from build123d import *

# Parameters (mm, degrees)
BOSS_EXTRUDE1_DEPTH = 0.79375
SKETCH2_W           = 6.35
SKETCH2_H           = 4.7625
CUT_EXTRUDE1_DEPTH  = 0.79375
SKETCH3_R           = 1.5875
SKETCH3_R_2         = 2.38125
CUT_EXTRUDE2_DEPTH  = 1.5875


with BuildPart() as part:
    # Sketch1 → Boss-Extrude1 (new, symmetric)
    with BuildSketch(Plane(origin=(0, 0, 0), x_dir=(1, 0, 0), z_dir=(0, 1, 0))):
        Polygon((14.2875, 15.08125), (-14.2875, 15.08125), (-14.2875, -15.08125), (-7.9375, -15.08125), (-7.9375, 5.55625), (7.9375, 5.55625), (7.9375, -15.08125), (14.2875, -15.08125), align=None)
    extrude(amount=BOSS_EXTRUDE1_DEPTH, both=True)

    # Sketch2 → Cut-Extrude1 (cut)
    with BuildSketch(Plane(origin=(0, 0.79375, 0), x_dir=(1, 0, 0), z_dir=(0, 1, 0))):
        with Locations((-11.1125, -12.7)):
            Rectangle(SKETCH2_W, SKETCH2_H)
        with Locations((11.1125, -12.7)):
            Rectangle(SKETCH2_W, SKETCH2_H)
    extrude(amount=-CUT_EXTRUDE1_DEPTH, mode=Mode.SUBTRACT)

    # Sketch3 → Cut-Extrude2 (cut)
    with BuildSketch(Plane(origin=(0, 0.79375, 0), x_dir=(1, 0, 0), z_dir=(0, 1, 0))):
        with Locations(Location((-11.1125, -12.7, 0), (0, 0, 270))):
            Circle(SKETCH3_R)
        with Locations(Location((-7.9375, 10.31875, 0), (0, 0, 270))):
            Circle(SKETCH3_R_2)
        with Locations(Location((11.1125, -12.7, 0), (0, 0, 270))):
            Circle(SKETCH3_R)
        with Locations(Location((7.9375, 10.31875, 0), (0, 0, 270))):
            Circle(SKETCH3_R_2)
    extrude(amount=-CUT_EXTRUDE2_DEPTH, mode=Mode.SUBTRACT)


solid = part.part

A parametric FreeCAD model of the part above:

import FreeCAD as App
import Part
import Sketcher

V = App.Vector
Q = App.Units.Quantity


def add_polygon(sketch, points):
    """Adds a closed chain of lines whose ends are joined by coincident constraints."""
    first, n = sketch.GeometryCount, len(points)
    for a, b in zip(points, points[1:] + points[:1]):
        sketch.addGeometry(Part.LineSegment(App.Vector(*a, 0), App.Vector(*b, 0)), False)
    for i in range(n):
        sketch.addConstraint(Sketcher.Constraint("Coincident", first + i, 2, first + (i + 1) % n, 1))

doc = App.newDocument("Part")
body = doc.addObject("PartDesign::Body", "Body")

# Sketch on XZ plane
sketch1 = doc.addObject("Sketcher::SketchObject", "Sketch")
body.addObject(sketch1)
sketch1.AttachmentSupport = (doc.XZ_Plane, [""])
sketch1.MapMode = "FlatFace"
add_polygon(sketch1, [(14.2875, -15.08125), (-14.2875, -15.08125), (-14.2875, 15.08125), (-7.9375, 15.08125), (-7.9375, -5.55625), (7.9375, -5.55625), (7.9375, 15.08125), (14.2875, 15.08125)])  # lines 0-7
sketch1.addConstraint([
    Sketcher.Constraint("Horizontal", 0),
    Sketcher.Constraint("Vertical", 1),
    Sketcher.Constraint("Horizontal", 2),
    Sketcher.Constraint("Vertical", 3),
    Sketcher.Constraint("Horizontal", 4),
    Sketcher.Constraint("Vertical", 5),
    Sketcher.Constraint("Horizontal", 6),
    Sketcher.Constraint("Vertical", 7),
    Sketcher.Constraint("Symmetric", 0, 2, 6, 2, -1, 1),
    Sketcher.Constraint("Symmetric", 2, 2, 5, 2, -2),
    Sketcher.Constraint("DistanceX", 2, 1, 2, 2, Q("0.25 in")),
    Sketcher.Constraint("DistanceX", 0, 2, 0, 1, Q("1.125 in")),
    Sketcher.Constraint("DistanceY", 1, 1, 1, 2, Q("1.1875 in")),
    Sketcher.Constraint("DistanceY", 3, 2, 3, 1, Q("0.8125 in")),
])
pad1 = doc.addObject("PartDesign::Pad", "Pad")
body.addObject(pad1)
pad1.Profile = sketch1
pad1.Length = Q("0.0625 in")
pad1.Midplane = True

# Sketch on XZ plane
sketch2 = doc.addObject("Sketcher::SketchObject", "Sketch001")
body.addObject(sketch2)
sketch2.AttachmentSupport = (doc.XZ_Plane, [""])
sketch2.MapMode = "FlatFace"
sketch2.AttachmentOffset = App.Placement(V(0, 0, -0.03125 * 25.4), App.Rotation())
add_polygon(sketch2, [(-14.2875, 10.31875), (-14.2875, 15.08125), (-7.9375, 15.08125), (-7.9375, 10.31875)])  # lines 0-3
add_polygon(sketch2, [(7.9375, 10.31875), (7.9375, 15.08125), (14.2875, 15.08125), (14.2875, 10.31875)])  # lines 4-7
sketch2.addConstraint([
    Sketcher.Constraint("Vertical", 0),
    Sketcher.Constraint("Horizontal", 1),
    Sketcher.Constraint("Vertical", 2),
    Sketcher.Constraint("Horizontal", 3),
    Sketcher.Constraint("Vertical", 4),
    Sketcher.Constraint("Horizontal", 5),
    Sketcher.Constraint("Vertical", 6),
    Sketcher.Constraint("Horizontal", 7),
    Sketcher.Constraint("Symmetric", 1, 2, 4, 2, -2),
    Sketcher.Constraint("Symmetric", 3, 2, 6, 2, -2),
    Sketcher.Constraint("DistanceX", 1, 1, 1, 2, Q("0.25 in")),
    Sketcher.Constraint("DistanceY", 0, 1, 0, 2, Q("0.1875 in")),
    Sketcher.Constraint("DistanceX", 0, 2, -1, 1, Q("0.5625 in")),
    Sketcher.Constraint("DistanceY", -1, 1, 0, 2, Q("0.59375 in")),
])
pocket1 = doc.addObject("PartDesign::Pocket", "Pocket")
body.addObject(pocket1)
pocket1.Profile = sketch2
pocket1.Length = Q("0.03125 in")
pocket1.Reversed = True

# Sketch on XZ plane
sketch3 = doc.addObject("Sketcher::SketchObject", "Sketch002")
body.addObject(sketch3)
sketch3.AttachmentSupport = (doc.XZ_Plane, [""])
sketch3.MapMode = "FlatFace"
sketch3.AttachmentOffset = App.Placement(V(0, 0, -0.03125 * 25.4), App.Rotation())
sketch3.addGeometry([
    Part.Circle(V(-11.1125, 12.7, 0), V(0, 0, 1), 1.5875),
    Part.Circle(V(-7.9375, -10.31875, 0), V(0, 0, 1), 2.38125),
    Part.Circle(V(11.1125, 12.7, 0), V(0, 0, 1), 1.5875),
    Part.Circle(V(7.9375, -10.31875, 0), V(0, 0, 1), 2.38125),
], False)
sketch3.addConstraint([
    Sketcher.Constraint("Equal", 0, 2),
    Sketcher.Constraint("Equal", 1, 3),
    Sketcher.Constraint("Symmetric", 0, 3, 2, 3, -2),
    Sketcher.Constraint("Symmetric", 1, 3, 3, 3, -2),
    Sketcher.Constraint("Diameter", 0, Q("0.125 in")),
    Sketcher.Constraint("Diameter", 1, Q("0.1875 in")),
    Sketcher.Constraint("DistanceY", -1, 1, 0, 3, Q("0.5 in")),
    Sketcher.Constraint("DistanceX", 1, 3, 2, 3, Q("0.75 in")),
    Sketcher.Constraint("DistanceX", 0, 3, -1, 1, Q("0.4375 in")),
    Sketcher.Constraint("DistanceY", 1, 3, -1, 1, Q("0.40625 in")),
])
pocket2 = doc.addObject("PartDesign::Pocket", "Pocket001")
body.addObject(pocket2)
pocket2.Profile = sketch3
pocket2.Length = Q("0.0625 in")
pocket2.Reversed = True

doc.recompute()
